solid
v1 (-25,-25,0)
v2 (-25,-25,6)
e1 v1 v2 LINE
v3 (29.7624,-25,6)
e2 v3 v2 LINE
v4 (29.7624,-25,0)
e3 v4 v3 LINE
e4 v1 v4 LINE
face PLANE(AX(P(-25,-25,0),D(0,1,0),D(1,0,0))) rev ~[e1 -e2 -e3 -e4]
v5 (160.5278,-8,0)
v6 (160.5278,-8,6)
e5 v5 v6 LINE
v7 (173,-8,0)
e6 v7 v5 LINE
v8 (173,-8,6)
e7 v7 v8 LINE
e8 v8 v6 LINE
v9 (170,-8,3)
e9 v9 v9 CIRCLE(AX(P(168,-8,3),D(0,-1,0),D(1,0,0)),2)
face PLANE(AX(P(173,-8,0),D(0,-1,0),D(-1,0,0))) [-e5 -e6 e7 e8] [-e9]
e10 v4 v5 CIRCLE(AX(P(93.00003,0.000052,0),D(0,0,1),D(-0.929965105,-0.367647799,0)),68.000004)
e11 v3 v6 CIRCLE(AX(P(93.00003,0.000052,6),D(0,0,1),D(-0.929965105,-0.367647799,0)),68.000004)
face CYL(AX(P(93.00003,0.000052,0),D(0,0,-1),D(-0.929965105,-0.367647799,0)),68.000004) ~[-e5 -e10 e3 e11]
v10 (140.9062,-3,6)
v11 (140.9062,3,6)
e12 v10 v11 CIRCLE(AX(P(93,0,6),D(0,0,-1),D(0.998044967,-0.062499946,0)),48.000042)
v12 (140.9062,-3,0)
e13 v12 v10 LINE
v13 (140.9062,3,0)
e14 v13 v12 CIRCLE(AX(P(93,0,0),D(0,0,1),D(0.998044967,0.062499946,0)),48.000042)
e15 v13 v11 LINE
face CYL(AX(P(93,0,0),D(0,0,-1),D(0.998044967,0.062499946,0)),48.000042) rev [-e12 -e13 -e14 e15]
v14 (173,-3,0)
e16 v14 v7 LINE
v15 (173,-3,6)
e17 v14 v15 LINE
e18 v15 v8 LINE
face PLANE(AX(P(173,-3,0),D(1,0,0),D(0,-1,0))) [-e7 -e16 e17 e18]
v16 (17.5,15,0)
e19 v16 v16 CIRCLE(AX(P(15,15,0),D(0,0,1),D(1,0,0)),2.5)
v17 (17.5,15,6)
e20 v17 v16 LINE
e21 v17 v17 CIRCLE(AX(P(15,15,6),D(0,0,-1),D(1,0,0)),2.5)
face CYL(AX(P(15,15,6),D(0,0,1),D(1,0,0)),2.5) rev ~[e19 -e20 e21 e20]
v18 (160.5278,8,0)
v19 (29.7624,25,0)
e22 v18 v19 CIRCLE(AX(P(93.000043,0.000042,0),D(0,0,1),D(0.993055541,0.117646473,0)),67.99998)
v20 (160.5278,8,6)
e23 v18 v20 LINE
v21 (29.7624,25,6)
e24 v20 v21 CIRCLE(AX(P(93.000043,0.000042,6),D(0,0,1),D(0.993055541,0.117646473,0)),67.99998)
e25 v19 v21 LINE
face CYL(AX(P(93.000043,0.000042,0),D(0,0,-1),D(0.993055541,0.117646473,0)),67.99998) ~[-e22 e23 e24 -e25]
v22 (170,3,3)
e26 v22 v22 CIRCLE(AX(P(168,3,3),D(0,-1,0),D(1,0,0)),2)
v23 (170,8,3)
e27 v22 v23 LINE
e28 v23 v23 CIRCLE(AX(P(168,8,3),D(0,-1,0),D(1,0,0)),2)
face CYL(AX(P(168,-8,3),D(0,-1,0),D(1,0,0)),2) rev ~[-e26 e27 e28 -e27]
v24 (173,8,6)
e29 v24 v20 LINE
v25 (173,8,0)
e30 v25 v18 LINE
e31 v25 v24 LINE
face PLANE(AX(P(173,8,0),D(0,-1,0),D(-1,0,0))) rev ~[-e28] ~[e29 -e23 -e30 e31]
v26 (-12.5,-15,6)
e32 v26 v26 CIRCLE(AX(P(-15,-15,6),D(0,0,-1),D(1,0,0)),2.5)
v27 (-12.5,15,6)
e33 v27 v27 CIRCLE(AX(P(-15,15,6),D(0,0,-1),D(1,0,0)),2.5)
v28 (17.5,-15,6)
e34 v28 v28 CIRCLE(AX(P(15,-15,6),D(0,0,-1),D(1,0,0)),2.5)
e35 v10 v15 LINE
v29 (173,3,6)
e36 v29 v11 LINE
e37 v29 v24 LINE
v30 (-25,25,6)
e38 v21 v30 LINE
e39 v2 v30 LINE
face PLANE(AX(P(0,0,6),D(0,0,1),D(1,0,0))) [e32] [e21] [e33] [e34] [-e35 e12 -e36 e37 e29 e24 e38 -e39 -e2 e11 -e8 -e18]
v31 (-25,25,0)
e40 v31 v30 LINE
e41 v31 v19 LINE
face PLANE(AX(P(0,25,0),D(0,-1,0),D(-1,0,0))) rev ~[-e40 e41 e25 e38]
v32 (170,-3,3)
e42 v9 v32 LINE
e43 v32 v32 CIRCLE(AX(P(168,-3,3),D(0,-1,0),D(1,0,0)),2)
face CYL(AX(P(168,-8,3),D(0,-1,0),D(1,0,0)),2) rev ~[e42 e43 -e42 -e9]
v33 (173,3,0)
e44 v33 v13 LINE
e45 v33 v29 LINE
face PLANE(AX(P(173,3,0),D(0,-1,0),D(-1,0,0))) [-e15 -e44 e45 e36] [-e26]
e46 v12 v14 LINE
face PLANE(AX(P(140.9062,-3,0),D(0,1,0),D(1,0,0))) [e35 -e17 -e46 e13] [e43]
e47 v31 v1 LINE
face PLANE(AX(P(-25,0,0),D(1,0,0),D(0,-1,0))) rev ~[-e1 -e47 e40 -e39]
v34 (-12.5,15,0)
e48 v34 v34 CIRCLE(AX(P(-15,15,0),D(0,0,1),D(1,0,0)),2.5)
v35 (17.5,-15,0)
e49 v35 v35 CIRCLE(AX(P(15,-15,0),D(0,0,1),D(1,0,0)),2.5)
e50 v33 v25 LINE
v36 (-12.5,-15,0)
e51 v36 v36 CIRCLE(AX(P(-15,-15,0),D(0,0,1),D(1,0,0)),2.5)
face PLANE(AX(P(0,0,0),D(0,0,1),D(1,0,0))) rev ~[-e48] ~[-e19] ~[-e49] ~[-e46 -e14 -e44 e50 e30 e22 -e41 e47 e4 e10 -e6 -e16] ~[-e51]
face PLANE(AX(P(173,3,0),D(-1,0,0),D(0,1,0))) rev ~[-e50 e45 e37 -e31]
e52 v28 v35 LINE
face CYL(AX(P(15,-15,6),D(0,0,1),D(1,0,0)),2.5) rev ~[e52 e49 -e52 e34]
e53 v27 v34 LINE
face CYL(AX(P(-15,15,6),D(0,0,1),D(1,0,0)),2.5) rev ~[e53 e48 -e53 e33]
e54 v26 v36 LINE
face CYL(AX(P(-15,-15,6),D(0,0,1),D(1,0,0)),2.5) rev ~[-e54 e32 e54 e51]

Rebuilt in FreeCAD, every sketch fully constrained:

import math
import FreeCAD as App
import Part
import Sketcher

doc = App.newDocument("Part")
body = doc.addObject("PartDesign::Body", "Body")

# Sketch on XY plane
sketch1 = doc.addObject("Sketcher::SketchObject", "Sketch")
body.addObject(sketch1)
sketch1.AttachmentSupport = (doc.XY_Plane, [""])
sketch1.MapMode = "FlatFace"
sketch1.addGeometry([
    Part.LineSegment(App.Vector(-25, -25, 0), App.Vector(29.7624, -25, 0)),  # 0
    Part.ArcOfCircle(Part.Circle(App.Vector(93, 0, 0), App.Vector(0, 0, 1), 68.000028), math.radians(-158.429407), math.radians(-6.756324)),  # 1
    Part.LineSegment(App.Vector(160.5278, -8, 0), App.Vector(173, -8, 0)),  # 2
    Part.LineSegment(App.Vector(173, -8, 0), App.Vector(173, -3, 0)),  # 3
    Part.LineSegment(App.Vector(173, -3, 0), App.Vector(140.9062, -3, 0)),  # 4
    Part.ArcOfCircle(Part.Circle(App.Vector(93, 0, 0), App.Vector(0, 0, 1), 48.000042), math.radians(3.583319), math.radians(356.416681)),  # 5
    Part.LineSegment(App.Vector(140.9062, 3, 0), App.Vector(173, 3, 0)),  # 6
    Part.LineSegment(App.Vector(173, 3, 0), App.Vector(173, 8, 0)),  # 7
    Part.LineSegment(App.Vector(173, 8, 0), App.Vector(160.5278, 8, 0)),  # 8
    Part.ArcOfCircle(Part.Circle(App.Vector(93, 0, 0), App.Vector(0, 0, 1), 67.999956), math.radians(6.756324), math.radians(158.429407)),  # 9
    Part.LineSegment(App.Vector(29.7624, 25, 0), App.Vector(-25, 25, 0)),  # 10
    Part.LineSegment(App.Vector(-25, 25, 0), App.Vector(-25, -25, 0)),  # 11
], False)
sketch1.addConstraint([
    Sketcher.Constraint("Coincident", 0, 2, 1, 1),
    Sketcher.Constraint("Coincident", 1, 2, 2, 1),
    Sketcher.Constraint("Coincident", 2, 2, 3, 1),
    Sketcher.Constraint("Coincident", 3, 2, 4, 1),
    Sketcher.Constraint("Coincident", 4, 2, 5, 2),
    Sketcher.Constraint("Coincident", 5, 1, 6, 1),
    Sketcher.Constraint("Coincident", 6, 2, 7, 1),
    Sketcher.Constraint("Coincident", 7, 2, 8, 1),
    Sketcher.Constraint("Coincident", 8, 2, 9, 1),
    Sketcher.Constraint("Coincident", 9, 2, 10, 1),
    Sketcher.Constraint("Coincident", 10, 2, 11, 1),
    Sketcher.Constraint("Coincident", 11, 2, 0, 1),
    Sketcher.Constraint("Horizontal", 0),
    Sketcher.Constraint("Horizontal", 2),
    Sketcher.Constraint("Vertical", 3),
    Sketcher.Constraint("Horizontal", 4),
    Sketcher.Constraint("Horizontal", 6),
    Sketcher.Constraint("Vertical", 7),
    Sketcher.Constraint("Horizontal", 8),
    Sketcher.Constraint("Horizontal", 10),
    Sketcher.Constraint("Vertical", 11),
    Sketcher.Constraint("Coincident", 5, 3, 1, 3),
    Sketcher.Constraint("Coincident", 9, 3, 1, 3),
    Sketcher.Constraint("Equal", 1, 9),
    Sketcher.Constraint("Symmetric", 4, 2, 5, 1, -1),
    Sketcher.Constraint("Symmetric", 2, 2, 7, 2, -1),
    Sketcher.Constraint("Vertical", 0, 2, 9, 2),
    Sketcher.Constraint("Radius", 5, 48.0),
    Sketcher.Constraint("DistanceY", 3, 1, 3, 2, 5.0),
    Sketcher.Constraint("DistanceY", 11, 2, 11, 1, 50.0),
    Sketcher.Constraint("DistanceX", -1, 1, 1, 3, 93.0),
    Sketcher.Constraint("DistanceY", 3, 2, -1, 1, 3.0),
    Sketcher.Constraint("Radius", 1, 68.0),
    Sketcher.Constraint("DistanceX", 1, 3, 2, 2, 80.0),
    Sketcher.Constraint("DistanceX", 10, 2, -1, 1, 25.0),
])
pad1 = doc.addObject("PartDesign::Pad", "Pad")
body.addObject(pad1)
pad1.Profile = sketch1
pad1.Length = 6

# Sketch on XY plane
sketch2 = doc.addObject("Sketcher::SketchObject", "Sketch001")
body.addObject(sketch2)
sketch2.AttachmentSupport = (doc.XY_Plane, [""])
sketch2.MapMode = "FlatFace"
sketch2.AttachmentOffset = App.Placement(App.Vector(0, 0, 6), App.Rotation())
sketch2.addGeometry([
    Part.Circle(App.Vector(-15, -15, 0), App.Vector(0, 0, 1), 2.5),
    Part.Circle(App.Vector(15, -15, 0), App.Vector(0, 0, 1), 2.5),
    Part.Circle(App.Vector(-15, 15, 0), App.Vector(0, 0, 1), 2.5),
    Part.Circle(App.Vector(15, 15, 0), App.Vector(0, 0, 1), 2.5),
], False)
sketch2.addConstraint([
    Sketcher.Constraint("Equal", 0, 1),
    Sketcher.Constraint("Equal", 1, 2),
    Sketcher.Constraint("Equal", 2, 3),
    Sketcher.Constraint("Symmetric", 1, 3, 2, 3, -1, 1),
    Sketcher.Constraint("Symmetric", 0, 3, 3, 3, -1, 1),
    Sketcher.Constraint("Symmetric", 0, 3, 1, 3, -2),
    Sketcher.Constraint("Diameter", 0, 5.0),
    Sketcher.Constraint("DistanceX", 0, 3, 1, 3, 30.0),
    Sketcher.Constraint("DistanceY", 0, 3, 2, 3, 30.0),
])
pocket1 = doc.addObject("PartDesign::Pocket", "Pocket")
body.addObject(pocket1)
pocket1.Profile = sketch2
pocket1.Length = 6

# Sketch on XZ plane
sketch3 = doc.addObject("Sketcher::SketchObject", "Sketch002")
body.addObject(sketch3)
sketch3.AttachmentSupport = (doc.XZ_Plane, [""])
sketch3.MapMode = "FlatFace"
sketch3.AttachmentOffset = App.Placement(App.Vector(0, 0, 8), App.Rotation())
sketch3.addGeometry(Part.Circle(App.Vector(168, 3, 0), App.Vector(0, 0, 1), 2), False)
sketch3.addConstraint([
    Sketcher.Constraint("Diameter", 0, 4.0),
    Sketcher.Constraint("DistanceY", -1, 1, 0, 3, 3.0),
    Sketcher.Constraint("DistanceX", -1, 1, 0, 3, 168.0),
])
pocket2 = doc.addObject("PartDesign::Pocket", "Pocket001")
body.addObject(pocket2)
pocket2.Profile = sketch3
pocket2.Type = "ThroughAll"

doc.recompute()
